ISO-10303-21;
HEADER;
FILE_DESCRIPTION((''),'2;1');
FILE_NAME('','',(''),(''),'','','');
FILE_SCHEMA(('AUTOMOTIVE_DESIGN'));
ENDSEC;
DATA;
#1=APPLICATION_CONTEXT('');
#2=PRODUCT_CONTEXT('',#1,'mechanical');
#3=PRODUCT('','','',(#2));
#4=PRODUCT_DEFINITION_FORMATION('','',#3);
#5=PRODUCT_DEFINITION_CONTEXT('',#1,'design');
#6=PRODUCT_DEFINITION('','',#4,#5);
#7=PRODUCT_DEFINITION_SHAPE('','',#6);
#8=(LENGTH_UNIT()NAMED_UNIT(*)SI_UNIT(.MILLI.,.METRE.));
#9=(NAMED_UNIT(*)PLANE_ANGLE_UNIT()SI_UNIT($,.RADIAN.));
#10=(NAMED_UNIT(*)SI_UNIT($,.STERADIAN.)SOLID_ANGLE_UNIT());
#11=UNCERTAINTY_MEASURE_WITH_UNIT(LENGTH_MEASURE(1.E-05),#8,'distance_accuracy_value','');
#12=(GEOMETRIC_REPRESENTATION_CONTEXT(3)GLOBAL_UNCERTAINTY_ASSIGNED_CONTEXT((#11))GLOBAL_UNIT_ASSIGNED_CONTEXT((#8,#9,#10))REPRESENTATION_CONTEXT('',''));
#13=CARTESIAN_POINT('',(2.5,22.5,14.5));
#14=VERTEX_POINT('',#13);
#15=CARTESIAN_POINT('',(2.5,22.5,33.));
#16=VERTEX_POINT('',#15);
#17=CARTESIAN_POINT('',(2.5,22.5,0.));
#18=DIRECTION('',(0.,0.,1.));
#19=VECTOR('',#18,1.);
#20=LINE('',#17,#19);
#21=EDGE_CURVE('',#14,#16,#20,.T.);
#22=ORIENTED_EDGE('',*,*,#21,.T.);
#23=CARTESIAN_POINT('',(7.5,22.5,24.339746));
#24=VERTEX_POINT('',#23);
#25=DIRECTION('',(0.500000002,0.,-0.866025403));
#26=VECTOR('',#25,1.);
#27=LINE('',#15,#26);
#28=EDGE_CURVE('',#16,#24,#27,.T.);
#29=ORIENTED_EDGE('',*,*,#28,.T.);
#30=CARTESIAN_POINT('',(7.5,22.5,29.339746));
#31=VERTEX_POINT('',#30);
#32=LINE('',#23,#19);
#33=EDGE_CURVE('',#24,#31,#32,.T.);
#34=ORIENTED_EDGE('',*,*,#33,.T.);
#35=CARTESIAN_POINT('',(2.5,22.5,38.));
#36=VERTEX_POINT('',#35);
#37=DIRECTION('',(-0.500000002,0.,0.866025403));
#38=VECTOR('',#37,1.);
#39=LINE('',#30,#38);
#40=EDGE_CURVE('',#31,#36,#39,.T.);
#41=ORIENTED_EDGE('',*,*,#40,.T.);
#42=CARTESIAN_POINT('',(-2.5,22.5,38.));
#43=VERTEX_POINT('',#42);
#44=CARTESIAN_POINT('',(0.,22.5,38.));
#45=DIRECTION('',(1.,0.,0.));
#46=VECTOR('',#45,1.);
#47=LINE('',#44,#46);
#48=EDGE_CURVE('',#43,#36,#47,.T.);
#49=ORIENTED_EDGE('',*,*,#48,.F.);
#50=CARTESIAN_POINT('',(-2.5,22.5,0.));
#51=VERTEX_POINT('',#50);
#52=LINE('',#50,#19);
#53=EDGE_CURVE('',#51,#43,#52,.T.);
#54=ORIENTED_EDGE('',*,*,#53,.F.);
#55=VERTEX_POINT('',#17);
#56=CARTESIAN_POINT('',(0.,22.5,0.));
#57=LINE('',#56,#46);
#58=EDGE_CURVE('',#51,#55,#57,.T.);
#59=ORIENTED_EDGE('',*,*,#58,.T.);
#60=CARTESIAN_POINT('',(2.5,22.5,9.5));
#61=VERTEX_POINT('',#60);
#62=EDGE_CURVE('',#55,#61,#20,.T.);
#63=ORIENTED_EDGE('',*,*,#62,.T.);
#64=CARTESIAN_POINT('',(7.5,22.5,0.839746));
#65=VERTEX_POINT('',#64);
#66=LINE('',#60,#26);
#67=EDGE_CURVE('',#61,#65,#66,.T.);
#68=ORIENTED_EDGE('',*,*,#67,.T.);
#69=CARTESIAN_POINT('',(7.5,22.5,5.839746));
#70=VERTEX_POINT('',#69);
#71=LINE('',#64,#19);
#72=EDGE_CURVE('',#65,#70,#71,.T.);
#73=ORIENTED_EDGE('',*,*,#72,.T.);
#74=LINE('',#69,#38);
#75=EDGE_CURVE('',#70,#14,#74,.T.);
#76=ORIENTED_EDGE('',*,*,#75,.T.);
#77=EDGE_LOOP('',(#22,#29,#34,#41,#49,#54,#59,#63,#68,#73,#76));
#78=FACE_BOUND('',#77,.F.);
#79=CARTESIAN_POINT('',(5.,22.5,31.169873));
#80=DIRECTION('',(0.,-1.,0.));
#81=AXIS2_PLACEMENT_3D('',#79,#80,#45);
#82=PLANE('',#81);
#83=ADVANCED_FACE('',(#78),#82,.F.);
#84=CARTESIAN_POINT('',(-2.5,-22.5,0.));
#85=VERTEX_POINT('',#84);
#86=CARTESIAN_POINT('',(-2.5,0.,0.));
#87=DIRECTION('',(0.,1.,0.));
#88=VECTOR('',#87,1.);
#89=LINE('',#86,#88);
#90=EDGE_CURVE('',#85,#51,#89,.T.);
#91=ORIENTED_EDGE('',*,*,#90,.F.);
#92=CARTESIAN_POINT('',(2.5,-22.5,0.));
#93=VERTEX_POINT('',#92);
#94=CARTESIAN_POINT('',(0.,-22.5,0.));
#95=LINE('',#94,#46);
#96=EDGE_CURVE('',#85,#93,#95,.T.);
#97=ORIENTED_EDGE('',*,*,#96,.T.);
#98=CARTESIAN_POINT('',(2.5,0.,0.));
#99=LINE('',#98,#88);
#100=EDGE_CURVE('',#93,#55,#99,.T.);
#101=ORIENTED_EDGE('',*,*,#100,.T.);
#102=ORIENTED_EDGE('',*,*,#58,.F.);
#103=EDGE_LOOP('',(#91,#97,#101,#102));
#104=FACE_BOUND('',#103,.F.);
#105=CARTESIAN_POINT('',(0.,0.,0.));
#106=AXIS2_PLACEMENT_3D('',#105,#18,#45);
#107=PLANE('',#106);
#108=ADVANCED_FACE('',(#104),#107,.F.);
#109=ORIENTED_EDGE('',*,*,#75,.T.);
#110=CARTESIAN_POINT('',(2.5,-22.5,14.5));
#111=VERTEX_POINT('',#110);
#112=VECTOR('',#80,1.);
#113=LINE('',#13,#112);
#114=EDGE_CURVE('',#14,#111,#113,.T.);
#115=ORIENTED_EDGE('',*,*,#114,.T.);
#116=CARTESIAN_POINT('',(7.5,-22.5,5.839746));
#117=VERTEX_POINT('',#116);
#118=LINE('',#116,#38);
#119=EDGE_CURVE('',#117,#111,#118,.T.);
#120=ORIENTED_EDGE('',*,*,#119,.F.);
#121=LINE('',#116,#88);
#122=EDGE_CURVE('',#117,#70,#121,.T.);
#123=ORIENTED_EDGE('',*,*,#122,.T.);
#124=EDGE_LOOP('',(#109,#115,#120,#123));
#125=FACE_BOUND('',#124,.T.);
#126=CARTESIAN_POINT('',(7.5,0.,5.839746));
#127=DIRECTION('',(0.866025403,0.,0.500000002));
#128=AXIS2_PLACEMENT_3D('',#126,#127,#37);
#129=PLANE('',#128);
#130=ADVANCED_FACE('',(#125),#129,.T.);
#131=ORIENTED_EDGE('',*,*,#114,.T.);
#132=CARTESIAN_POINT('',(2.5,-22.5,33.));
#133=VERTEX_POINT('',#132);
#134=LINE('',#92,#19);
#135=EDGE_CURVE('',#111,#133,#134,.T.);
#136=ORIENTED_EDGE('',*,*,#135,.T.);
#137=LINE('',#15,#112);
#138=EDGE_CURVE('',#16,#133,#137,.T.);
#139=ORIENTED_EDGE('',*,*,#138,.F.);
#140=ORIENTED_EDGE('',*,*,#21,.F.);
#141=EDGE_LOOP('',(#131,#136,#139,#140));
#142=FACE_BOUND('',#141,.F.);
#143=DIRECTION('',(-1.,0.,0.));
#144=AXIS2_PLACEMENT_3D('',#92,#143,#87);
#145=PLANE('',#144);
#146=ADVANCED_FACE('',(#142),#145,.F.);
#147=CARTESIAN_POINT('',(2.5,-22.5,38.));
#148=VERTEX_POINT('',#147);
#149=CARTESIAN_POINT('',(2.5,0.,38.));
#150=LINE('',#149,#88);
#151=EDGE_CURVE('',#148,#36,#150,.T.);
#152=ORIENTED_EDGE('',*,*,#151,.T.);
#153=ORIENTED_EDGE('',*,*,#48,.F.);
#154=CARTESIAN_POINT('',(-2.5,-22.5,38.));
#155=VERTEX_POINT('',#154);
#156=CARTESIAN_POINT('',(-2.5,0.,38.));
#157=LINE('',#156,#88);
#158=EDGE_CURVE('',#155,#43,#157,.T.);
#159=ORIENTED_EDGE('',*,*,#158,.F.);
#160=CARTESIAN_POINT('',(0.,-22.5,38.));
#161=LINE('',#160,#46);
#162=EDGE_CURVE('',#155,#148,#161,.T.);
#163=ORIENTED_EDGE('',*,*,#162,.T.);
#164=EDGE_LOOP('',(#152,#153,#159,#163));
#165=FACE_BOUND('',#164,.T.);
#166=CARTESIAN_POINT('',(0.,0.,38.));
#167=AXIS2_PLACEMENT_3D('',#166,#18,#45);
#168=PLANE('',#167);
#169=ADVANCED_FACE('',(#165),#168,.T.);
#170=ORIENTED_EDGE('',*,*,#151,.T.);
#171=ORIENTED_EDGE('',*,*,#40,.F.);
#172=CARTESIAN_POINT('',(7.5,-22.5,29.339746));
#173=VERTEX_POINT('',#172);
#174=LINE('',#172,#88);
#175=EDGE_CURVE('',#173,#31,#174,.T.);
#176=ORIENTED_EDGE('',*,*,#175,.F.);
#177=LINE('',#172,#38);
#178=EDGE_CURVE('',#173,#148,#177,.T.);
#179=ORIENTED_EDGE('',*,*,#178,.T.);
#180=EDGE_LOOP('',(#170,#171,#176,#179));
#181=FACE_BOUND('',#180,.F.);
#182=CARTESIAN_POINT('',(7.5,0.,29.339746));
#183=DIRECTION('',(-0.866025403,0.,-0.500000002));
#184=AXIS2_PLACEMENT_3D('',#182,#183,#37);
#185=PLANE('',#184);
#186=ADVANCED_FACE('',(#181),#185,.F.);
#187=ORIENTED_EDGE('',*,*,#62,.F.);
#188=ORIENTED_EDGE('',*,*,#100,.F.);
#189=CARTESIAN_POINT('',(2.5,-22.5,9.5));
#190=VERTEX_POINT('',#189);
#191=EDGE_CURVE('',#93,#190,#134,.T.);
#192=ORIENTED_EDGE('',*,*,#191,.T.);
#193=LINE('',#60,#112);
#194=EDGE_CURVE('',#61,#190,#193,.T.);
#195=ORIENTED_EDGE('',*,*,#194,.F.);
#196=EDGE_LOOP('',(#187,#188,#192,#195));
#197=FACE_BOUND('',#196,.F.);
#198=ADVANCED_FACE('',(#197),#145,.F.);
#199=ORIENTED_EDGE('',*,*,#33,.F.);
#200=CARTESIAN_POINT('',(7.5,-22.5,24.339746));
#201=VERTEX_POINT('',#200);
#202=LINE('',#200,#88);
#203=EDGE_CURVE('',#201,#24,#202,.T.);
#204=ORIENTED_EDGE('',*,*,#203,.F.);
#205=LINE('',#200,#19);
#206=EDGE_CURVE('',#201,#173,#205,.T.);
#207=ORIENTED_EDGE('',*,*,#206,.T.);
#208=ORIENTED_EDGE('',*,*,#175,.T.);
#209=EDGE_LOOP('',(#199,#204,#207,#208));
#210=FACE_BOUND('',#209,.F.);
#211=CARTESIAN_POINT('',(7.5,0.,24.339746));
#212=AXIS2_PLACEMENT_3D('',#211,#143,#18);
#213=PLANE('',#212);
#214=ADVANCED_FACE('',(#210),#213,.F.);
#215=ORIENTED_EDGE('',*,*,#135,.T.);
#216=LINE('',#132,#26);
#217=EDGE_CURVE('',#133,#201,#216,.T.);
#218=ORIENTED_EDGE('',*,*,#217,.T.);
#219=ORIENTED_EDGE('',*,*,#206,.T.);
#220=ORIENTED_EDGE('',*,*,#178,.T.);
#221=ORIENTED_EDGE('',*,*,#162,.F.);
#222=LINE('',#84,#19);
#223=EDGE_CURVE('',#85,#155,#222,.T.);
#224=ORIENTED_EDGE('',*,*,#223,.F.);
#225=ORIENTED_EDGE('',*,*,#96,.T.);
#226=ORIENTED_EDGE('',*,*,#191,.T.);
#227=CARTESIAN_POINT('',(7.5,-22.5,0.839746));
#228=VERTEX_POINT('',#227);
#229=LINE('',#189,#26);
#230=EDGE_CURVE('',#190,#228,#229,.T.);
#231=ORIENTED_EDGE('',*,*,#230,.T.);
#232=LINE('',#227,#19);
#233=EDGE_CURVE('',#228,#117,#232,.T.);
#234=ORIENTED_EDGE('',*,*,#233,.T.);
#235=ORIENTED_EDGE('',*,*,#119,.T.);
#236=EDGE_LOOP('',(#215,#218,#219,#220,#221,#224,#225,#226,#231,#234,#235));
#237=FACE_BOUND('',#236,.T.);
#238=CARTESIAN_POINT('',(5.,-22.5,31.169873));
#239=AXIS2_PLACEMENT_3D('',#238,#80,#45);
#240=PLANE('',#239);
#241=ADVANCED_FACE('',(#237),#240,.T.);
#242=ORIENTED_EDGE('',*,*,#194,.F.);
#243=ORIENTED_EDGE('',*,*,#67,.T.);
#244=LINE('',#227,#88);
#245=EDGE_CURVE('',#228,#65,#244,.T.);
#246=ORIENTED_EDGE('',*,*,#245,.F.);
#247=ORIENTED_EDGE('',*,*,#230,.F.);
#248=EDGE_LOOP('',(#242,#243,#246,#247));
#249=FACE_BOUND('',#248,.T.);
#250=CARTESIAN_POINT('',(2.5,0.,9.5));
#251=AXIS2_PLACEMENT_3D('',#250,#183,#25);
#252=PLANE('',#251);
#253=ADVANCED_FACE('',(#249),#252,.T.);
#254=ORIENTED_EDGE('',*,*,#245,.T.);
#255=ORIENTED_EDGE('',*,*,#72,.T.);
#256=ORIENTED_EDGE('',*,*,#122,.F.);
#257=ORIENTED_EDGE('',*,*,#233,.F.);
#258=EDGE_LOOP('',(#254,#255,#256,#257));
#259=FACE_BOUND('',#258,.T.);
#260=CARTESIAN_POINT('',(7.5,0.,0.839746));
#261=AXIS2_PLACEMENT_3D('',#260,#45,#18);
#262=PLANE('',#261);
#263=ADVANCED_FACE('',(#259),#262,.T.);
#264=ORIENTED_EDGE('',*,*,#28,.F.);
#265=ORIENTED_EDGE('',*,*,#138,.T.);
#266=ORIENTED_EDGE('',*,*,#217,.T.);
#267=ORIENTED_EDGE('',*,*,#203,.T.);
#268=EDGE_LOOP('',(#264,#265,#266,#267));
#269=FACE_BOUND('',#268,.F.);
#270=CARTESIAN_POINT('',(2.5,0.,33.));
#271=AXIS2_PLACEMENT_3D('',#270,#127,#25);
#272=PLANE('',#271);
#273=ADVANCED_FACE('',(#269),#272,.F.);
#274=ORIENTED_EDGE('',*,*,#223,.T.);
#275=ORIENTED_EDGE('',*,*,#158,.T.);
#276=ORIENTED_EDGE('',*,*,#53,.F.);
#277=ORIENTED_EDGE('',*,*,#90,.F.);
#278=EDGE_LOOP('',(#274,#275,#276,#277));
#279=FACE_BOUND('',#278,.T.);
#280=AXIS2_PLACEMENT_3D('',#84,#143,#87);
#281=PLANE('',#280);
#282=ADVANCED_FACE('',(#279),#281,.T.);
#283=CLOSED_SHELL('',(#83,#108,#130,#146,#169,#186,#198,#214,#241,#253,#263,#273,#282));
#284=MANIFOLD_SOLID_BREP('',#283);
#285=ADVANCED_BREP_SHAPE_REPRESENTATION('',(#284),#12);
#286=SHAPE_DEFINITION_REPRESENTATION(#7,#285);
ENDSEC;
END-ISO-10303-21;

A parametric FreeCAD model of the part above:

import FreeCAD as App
import Part
import Sketcher
Q = App.Units.Quantity

doc = App.newDocument("Part")
body = doc.addObject("PartDesign::Body", "Body")

# Sketch on XY plane
sketch1 = body.newObject("Sketcher::SketchObject", "Sketch")
sketch1.AttachmentSupport = (doc.getObject("XY_Plane"), [""])
sketch1.MapMode = "FlatFace"
sketch1.addGeometry([
    Part.LineSegment(App.Vector(-2, 22, 0), App.Vector(-2, -22, 0)),
    Part.LineSegment(App.Vector(-2, -22, 0), App.Vector(2, -22, 0)),
    Part.LineSegment(App.Vector(2, -22, 0), App.Vector(2, 22, 0)),
    Part.LineSegment(App.Vector(2, 22, 0), App.Vector(-2, 22, 0)),
], False)
sketch1.addConstraint([
    Sketcher.Constraint("Coincident", 0, 2, 1, 1),
    Sketcher.Constraint("Coincident", 1, 2, 2, 1),
    Sketcher.Constraint("Coincident", 2, 2, 3, 1),
    Sketcher.Constraint("Coincident", 3, 2, 0, 1),
    Sketcher.Constraint("Vertical", 0),
    Sketcher.Constraint("Horizontal", 1),
    Sketcher.Constraint("Vertical", 2),
    Sketcher.Constraint("Horizontal", 3),
    Sketcher.Constraint("Symmetric", 0, 2, 2, 2, -1, 1),
    Sketcher.Constraint("DistanceX", 1, 1, 1, 2, 5.0),
    Sketcher.Constraint("DistanceY", 0, 2, 0, 1, 45.0),
])
pad1 = body.newObject("PartDesign::Pad", "Pad")
pad1.Profile = sketch1
pad1.Length = 38

# Sketch on XZ plane
sketch2 = body.newObject("Sketcher::SketchObject", "Sketch001")
sketch2.AttachmentSupport = (doc.getObject("XZ_Plane"), [""])
sketch2.MapMode = "FlatFace"
sketch2.addGeometry([
    Part.LineSegment(App.Vector(8, 29, 0), App.Vector(2, 38, 0)),  # 0
    Part.LineSegment(App.Vector(2, 38, 0), App.Vector(2, 33, 0)),  # 1
    Part.LineSegment(App.Vector(2, 33, 0), App.Vector(8, 24, 0)),  # 2
    Part.LineSegment(App.Vector(8, 24, 0), App.Vector(8, 29, 0)),  # 3
    Part.LineSegment(App.Vector(8, 6, 0), App.Vector(2, 14, 0)),  # 4
    Part.LineSegment(App.Vector(2, 14, 0), App.Vector(2, 10, 0)),  # 5
    Part.LineSegment(App.Vector(2, 10, 0), App.Vector(8, 1, 0)),  # 6
    Part.LineSegment(App.Vector(8, 1, 0), App.Vector(8, 6, 0)),  # 7
], False)
sketch2.addConstraint([
    Sketcher.Constraint("Coincident", 0, 2, 1, 1),
    Sketcher.Constraint("Coincident", 1, 2, 2, 1),
    Sketcher.Constraint("Coincident", 2, 2, 3, 1),
    Sketcher.Constraint("Coincident", 3, 2, 0, 1),
    Sketcher.Constraint("Coincident", 4, 2, 5, 1),
    Sketcher.Constraint("Coincident", 5, 2, 6, 1),
    Sketcher.Constraint("Coincident", 6, 2, 7, 1),
    Sketcher.Constraint("Coincident", 7, 2, 4, 1),
    Sketcher.Constraint("Vertical", 1),
    Sketcher.Constraint("Vertical", 3),
    Sketcher.Constraint("Vertical", 5),
    Sketcher.Constraint("Vertical", 7),
    Sketcher.Constraint("Parallel", 0, 2),
    Sketcher.Constraint("Parallel", 2, 4),
    Sketcher.Constraint("Parallel", 4, 6),
    Sketcher.Constraint("Vertical", 1, 2, 4, 2),
    Sketcher.Constraint("Vertical", 3, 2, 6, 2),
    Sketcher.Constraint("Equal", 3, 5),
    Sketcher.Constraint("DistanceY", 1, 2, 1, 1, 5.0),
    Sketcher.Constraint("Angle", 0, Q("120 deg")),
    Sketcher.Constraint("Distance", 0, 10.0),
    Sketcher.Constraint("DistanceY", -1, 1, 0, 2, 38.0),
    Sketcher.Constraint("DistanceX", -1, 1, 0, 2, 2.5),
    Sketcher.Constraint("DistanceY", -1, 1, 4, 2, 14.5),
])
pad2 = body.newObject("PartDesign::Pad", "Pad001")
pad2.Profile = sketch2
pad2.Length = 45
pad2.Midplane = True

doc.recompute()
